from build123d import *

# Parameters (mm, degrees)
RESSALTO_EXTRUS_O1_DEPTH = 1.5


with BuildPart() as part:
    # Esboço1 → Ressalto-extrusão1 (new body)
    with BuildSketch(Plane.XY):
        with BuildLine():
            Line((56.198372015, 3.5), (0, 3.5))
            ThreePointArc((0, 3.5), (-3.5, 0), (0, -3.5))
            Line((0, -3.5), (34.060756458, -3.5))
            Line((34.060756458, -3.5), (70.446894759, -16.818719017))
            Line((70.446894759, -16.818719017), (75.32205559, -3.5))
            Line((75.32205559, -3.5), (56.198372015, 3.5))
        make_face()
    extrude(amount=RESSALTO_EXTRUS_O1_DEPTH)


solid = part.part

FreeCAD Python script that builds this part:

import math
import FreeCAD as App
import Part
import Sketcher

V = App.Vector

doc = App.newDocument("Part")
body = doc.addObject("PartDesign::Body", "Body")

sketch1 = doc.addObject("Sketcher::SketchObject", "Sketch")
body.addObject(sketch1)
sketch1.AttachmentSupport = (doc.XY_Plane, [""])
sketch1.MapMode = "FlatFace"
sketch1.addGeometry(Part.LineSegment(V(56.198372, 3.5, 0), V(0, 3.5, 0)), False)
sketch1.addGeometry(Part.ArcOfCircle(Part.Circle(V(0, 0, 0), V(0, 0, 1), 3.5), math.radians(90), math.radians(270)), False)
sketch1.addGeometry(Part.LineSegment(V(0, -3.5, 0), V(34.060756, -3.5, 0)), False)
sketch1.addGeometry(Part.LineSegment(V(34.060756, -3.5, 0), V(70.446895, -16.818719, 0)), False)
sketch1.addGeometry(Part.LineSegment(V(70.446895, -16.818719, 0), V(75.322056, -3.5, 0)), False)
sketch1.addGeometry(Part.LineSegment(V(75.322056, -3.5, 0), V(56.198372, 3.5, 0)), False)
sketch1.addConstraint(Sketcher.Constraint("Tangent", 0, 2, 1, 1))
sketch1.addConstraint(Sketcher.Constraint("Tangent", 1, 2, 2, 1))
sketch1.addConstraint(Sketcher.Constraint("Coincident", 2, 2, 3, 1))
sketch1.addConstraint(Sketcher.Constraint("Coincident", 3, 2, 4, 1))
sketch1.addConstraint(Sketcher.Constraint("Coincident", 4, 2, 5, 1))
sketch1.addConstraint(Sketcher.Constraint("Coincident", 5, 2, 0, 1))
sketch1.addConstraint(Sketcher.Constraint("Horizontal", 0))
sketch1.addConstraint(Sketcher.Constraint("Horizontal", 2))
sketch1.addConstraint(Sketcher.Constraint("Coincident", 1, 3, -1, 1))
sketch1.addConstraint(Sketcher.Constraint("Perpendicular", 3, 4))
sketch1.addConstraint(Sketcher.Constraint("Perpendicular", 4, 5))
sketch1.addConstraint(Sketcher.Constraint("Horizontal", 2, 2, 4, 2))
sketch1.addConstraint(Sketcher.Constraint("Radius", 1, 3.5))
sketch1.addConstraint(Sketcher.Constraint("DistanceX", 2, 2, 4, 2, 41.261299))
sketch1.addConstraint(Sketcher.Constraint("Distance", 3, 38.74712))
sketch1.addConstraint(Sketcher.Constraint("DistanceX", 0, 2, 0, 1, 56.198372))
pad1 = doc.addObject("PartDesign::Pad", "Pad")
body.addObject(pad1)
pad1.Profile = sketch1
pad1.Length = 1.5

doc.recompute()
